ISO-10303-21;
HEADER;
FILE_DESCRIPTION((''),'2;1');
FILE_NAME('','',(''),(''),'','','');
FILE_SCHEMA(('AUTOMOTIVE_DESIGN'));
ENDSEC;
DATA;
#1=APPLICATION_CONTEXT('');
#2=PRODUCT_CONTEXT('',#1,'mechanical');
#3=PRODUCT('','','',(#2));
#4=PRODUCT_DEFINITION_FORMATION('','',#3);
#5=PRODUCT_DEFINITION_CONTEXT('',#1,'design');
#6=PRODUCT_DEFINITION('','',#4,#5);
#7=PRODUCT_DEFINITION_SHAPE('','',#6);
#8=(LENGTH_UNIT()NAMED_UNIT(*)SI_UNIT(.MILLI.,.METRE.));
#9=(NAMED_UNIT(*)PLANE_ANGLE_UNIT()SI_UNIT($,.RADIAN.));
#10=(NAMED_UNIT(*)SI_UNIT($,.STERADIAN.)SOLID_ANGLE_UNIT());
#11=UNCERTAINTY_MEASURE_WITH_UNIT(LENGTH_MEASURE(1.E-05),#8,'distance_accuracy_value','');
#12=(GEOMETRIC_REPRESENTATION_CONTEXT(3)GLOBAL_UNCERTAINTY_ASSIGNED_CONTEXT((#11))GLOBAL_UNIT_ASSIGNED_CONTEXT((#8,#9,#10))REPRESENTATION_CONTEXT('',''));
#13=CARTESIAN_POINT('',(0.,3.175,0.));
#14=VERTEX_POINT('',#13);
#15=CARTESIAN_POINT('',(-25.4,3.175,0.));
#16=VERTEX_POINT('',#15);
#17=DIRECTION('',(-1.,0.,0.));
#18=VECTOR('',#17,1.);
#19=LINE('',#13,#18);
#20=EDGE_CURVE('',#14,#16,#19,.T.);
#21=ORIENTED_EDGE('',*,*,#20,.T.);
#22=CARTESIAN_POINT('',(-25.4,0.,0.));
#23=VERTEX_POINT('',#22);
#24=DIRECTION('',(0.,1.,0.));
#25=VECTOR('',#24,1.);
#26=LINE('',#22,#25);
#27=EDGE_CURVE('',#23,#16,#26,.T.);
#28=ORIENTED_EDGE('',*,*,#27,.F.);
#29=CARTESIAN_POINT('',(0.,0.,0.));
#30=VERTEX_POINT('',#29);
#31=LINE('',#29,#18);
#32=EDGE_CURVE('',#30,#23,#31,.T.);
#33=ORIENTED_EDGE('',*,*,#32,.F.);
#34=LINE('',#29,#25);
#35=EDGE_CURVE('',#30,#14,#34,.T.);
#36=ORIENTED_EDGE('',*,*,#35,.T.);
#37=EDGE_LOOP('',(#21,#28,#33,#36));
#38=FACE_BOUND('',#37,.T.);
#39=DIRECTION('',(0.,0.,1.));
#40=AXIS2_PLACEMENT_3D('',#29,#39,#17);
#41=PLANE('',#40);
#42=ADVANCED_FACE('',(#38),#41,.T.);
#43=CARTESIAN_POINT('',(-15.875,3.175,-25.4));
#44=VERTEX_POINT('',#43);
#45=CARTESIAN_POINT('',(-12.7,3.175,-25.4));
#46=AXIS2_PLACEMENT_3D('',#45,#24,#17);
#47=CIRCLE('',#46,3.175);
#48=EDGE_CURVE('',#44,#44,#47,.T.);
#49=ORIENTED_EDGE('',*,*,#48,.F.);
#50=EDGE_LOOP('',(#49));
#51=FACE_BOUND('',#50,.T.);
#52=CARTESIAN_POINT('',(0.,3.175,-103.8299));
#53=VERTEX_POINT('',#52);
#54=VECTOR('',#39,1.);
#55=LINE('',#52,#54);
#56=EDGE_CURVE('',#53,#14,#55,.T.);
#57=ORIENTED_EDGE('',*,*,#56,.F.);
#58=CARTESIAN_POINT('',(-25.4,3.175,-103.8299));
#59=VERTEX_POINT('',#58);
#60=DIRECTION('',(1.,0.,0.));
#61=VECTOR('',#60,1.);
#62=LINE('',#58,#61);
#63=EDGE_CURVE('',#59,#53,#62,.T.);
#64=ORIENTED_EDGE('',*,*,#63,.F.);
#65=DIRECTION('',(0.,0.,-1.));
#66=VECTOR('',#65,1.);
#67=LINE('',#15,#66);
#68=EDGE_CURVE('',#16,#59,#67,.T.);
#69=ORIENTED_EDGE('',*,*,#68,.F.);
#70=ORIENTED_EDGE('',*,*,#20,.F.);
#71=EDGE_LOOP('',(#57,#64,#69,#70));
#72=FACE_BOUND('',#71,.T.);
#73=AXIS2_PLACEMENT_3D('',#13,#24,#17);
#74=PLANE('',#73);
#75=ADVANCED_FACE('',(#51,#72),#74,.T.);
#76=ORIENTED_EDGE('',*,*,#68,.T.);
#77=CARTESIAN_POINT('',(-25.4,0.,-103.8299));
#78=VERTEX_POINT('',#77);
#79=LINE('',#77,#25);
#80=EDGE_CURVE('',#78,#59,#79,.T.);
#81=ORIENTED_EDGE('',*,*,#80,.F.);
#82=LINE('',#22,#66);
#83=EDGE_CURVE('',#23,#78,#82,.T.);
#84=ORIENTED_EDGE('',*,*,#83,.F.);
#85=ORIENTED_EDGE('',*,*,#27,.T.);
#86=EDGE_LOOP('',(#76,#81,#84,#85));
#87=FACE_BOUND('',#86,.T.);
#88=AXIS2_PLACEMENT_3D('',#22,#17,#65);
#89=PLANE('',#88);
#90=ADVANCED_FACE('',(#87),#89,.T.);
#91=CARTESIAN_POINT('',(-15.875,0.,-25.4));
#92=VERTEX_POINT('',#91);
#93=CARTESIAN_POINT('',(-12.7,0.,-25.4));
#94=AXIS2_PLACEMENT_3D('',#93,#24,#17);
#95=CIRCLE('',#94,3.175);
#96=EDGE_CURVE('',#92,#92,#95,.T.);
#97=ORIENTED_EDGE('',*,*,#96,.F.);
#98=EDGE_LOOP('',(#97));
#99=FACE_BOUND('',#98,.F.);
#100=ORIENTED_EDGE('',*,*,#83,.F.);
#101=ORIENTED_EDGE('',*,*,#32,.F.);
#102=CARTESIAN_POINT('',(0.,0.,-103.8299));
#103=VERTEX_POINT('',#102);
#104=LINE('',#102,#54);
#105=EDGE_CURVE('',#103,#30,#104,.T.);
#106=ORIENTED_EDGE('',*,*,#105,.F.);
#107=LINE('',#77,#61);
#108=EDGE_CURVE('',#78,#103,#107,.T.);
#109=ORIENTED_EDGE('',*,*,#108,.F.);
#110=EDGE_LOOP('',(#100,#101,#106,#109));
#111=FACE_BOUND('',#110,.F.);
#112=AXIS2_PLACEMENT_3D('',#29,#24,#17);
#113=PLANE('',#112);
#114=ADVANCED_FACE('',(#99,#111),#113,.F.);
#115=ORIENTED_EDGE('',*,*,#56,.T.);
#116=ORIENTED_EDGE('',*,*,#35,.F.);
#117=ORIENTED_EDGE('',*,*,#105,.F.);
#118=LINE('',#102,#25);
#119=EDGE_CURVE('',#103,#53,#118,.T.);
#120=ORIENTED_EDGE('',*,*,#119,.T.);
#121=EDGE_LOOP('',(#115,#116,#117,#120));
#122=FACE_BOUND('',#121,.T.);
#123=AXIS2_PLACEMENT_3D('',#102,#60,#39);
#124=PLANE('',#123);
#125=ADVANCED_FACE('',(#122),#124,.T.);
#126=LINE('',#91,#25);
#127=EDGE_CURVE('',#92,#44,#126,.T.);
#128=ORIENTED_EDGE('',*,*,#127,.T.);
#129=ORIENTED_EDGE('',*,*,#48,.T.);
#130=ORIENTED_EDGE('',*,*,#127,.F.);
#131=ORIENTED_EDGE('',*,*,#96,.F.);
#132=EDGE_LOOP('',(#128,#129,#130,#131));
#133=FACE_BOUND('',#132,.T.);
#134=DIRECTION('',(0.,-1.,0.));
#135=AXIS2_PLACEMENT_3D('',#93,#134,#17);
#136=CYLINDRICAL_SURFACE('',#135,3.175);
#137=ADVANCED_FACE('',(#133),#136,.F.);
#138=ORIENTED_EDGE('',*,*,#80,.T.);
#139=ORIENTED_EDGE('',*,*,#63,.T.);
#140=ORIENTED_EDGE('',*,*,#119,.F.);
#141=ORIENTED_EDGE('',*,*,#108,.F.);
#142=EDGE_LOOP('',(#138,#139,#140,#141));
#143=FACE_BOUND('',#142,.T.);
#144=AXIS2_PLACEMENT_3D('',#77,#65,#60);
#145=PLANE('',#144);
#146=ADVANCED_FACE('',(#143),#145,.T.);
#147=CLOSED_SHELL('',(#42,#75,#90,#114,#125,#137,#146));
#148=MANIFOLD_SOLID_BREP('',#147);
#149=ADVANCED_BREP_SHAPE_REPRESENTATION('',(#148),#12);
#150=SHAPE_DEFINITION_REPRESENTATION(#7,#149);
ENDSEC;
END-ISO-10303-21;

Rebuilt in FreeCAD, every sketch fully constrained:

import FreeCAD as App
import Part
import Sketcher

V = App.Vector
Q = App.Units.Quantity


def add_polygon(sketch, points):
    """Adds a closed chain of lines whose ends are joined by coincident constraints."""
    first, n = sketch.GeometryCount, len(points)
    for a, b in zip(points, points[1:] + points[:1]):
        sketch.addGeometry(Part.LineSegment(App.Vector(*a, 0), App.Vector(*b, 0)), False)
    for i in range(n):
        sketch.addConstraint(Sketcher.Constraint("Coincident", first + i, 2, first + (i + 1) % n, 1))

doc = App.newDocument("Part")
body = doc.addObject("PartDesign::Body", "Body")

# Sketch on XZ plane
sketch1 = body.newObject("Sketcher::SketchObject", "Sketch")
sketch1.AttachmentSupport = (doc.getObject("XZ_Plane"), [""])
sketch1.MapMode = "FlatFace"
add_polygon(sketch1, [(-25.4, 0), (0, 0), (0, -103.8), (-25.4, -103.8)])  # lines 0-3
sketch1.addGeometry(Part.Circle(V(-12.7, -25.4, 0), V(0, 0, 1), 3.2), False)  # 4
sketch1.addConstraint([
    Sketcher.Constraint("Horizontal", 0),
    Sketcher.Constraint("Vertical", 1),
    Sketcher.Constraint("Horizontal", 2),
    Sketcher.Constraint("Vertical", 3),
    Sketcher.Constraint("Coincident", 0, 2, -1, 1),
    Sketcher.Constraint("Diameter", 4, Q("0.25 in")),
    Sketcher.Constraint("DistanceX", 0, 1, 0, 2, Q("1 in")),
    Sketcher.Constraint("DistanceY", 4, 3, -1, 1, Q("1 in")),
    Sketcher.Constraint("DistanceX", 4, 3, -1, 1, Q("0.5 in")),
    Sketcher.Constraint("DistanceY", 1, 2, 1, 1, Q("4.0878 in")),
])
pad1 = body.newObject("PartDesign::Pad", "Pad")
pad1.Profile = sketch1
pad1.Length = Q("0.125 in")
pad1.Reversed = True

doc.recompute()
